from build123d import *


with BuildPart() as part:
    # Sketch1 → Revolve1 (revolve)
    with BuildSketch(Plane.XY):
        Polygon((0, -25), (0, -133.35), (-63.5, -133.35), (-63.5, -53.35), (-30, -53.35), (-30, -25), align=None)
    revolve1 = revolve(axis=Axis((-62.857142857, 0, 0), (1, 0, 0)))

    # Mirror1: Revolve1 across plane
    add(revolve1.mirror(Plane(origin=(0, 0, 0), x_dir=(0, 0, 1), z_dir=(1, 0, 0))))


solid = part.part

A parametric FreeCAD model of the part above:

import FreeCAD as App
import Part
import Sketcher
Q = App.Units.Quantity

doc = App.newDocument("Part")
body = doc.addObject("PartDesign::Body", "Body")

# Sketch on XY plane
sketch1 = body.newObject("Sketcher::SketchObject", "Sketch")
sketch1.AttachmentSupport = (doc.getObject("XY_Plane"), [""])
sketch1.MapMode = "FlatFace"
sketch1.addGeometry([
    Part.LineSegment(App.Vector(0, -133, 0), App.Vector(0, -25, 0)),  # 0
    Part.LineSegment(App.Vector(0, -25, 0), App.Vector(-30, -25, 0)),  # 1
    Part.LineSegment(App.Vector(-30, -25, 0), App.Vector(-30, -53, 0)),  # 2
    Part.LineSegment(App.Vector(-30, -53, 0), App.Vector(-64, -53, 0)),  # 3
    Part.LineSegment(App.Vector(-64, -53, 0), App.Vector(-64, -133, 0)),  # 4
    Part.LineSegment(App.Vector(-64, -133, 0), App.Vector(0, -133, 0)),  # 5
], False)
sketch1.addConstraint([
    Sketcher.Constraint("Coincident", 0, 2, 1, 1),
    Sketcher.Constraint("Coincident", 1, 2, 2, 1),
    Sketcher.Constraint("Coincident", 2, 2, 3, 1),
    Sketcher.Constraint("Coincident", 3, 2, 4, 1),
    Sketcher.Constraint("Coincident", 4, 2, 5, 1),
    Sketcher.Constraint("Coincident", 5, 2, 0, 1),
    Sketcher.Constraint("Vertical", 0),
    Sketcher.Constraint("Horizontal", 1),
    Sketcher.Constraint("Vertical", 2),
    Sketcher.Constraint("Horizontal", 3),
    Sketcher.Constraint("Vertical", 4),
    Sketcher.Constraint("Horizontal", 5),
    Sketcher.Constraint("PointOnObject", 0, 2, -2),
    Sketcher.Constraint("DistanceX", 1, 2, 1, 1, Q("30 mm")),
    Sketcher.Constraint("DistanceY", 4, 2, 4, 1, Q("80 mm")),
    Sketcher.Constraint("DistanceX", 3, 2, 3, 1, Q("33.5 mm")),
    Sketcher.Constraint("DistanceY", 0, 2, -1, 1, Q("25 mm")),
    Sketcher.Constraint("DistanceY", 0, 1, 0, 2, Q("108.35 mm")),
])
revolution = body.newObject("PartDesign::Revolution", "Revolution")
revolution.Profile = sketch1
revolution.ReferenceAxis = (sketch1, ["H_Axis"])
revolution.Angle = 360
doc.recompute()

mirrored = body.newObject("PartDesign::Mirrored", "Mirrored")
mirrored.Originals = [revolution]
mirrored.MirrorPlane = (doc.getObject("YZ_Plane"), [""])
body.Tip = mirrored

doc.recompute()
